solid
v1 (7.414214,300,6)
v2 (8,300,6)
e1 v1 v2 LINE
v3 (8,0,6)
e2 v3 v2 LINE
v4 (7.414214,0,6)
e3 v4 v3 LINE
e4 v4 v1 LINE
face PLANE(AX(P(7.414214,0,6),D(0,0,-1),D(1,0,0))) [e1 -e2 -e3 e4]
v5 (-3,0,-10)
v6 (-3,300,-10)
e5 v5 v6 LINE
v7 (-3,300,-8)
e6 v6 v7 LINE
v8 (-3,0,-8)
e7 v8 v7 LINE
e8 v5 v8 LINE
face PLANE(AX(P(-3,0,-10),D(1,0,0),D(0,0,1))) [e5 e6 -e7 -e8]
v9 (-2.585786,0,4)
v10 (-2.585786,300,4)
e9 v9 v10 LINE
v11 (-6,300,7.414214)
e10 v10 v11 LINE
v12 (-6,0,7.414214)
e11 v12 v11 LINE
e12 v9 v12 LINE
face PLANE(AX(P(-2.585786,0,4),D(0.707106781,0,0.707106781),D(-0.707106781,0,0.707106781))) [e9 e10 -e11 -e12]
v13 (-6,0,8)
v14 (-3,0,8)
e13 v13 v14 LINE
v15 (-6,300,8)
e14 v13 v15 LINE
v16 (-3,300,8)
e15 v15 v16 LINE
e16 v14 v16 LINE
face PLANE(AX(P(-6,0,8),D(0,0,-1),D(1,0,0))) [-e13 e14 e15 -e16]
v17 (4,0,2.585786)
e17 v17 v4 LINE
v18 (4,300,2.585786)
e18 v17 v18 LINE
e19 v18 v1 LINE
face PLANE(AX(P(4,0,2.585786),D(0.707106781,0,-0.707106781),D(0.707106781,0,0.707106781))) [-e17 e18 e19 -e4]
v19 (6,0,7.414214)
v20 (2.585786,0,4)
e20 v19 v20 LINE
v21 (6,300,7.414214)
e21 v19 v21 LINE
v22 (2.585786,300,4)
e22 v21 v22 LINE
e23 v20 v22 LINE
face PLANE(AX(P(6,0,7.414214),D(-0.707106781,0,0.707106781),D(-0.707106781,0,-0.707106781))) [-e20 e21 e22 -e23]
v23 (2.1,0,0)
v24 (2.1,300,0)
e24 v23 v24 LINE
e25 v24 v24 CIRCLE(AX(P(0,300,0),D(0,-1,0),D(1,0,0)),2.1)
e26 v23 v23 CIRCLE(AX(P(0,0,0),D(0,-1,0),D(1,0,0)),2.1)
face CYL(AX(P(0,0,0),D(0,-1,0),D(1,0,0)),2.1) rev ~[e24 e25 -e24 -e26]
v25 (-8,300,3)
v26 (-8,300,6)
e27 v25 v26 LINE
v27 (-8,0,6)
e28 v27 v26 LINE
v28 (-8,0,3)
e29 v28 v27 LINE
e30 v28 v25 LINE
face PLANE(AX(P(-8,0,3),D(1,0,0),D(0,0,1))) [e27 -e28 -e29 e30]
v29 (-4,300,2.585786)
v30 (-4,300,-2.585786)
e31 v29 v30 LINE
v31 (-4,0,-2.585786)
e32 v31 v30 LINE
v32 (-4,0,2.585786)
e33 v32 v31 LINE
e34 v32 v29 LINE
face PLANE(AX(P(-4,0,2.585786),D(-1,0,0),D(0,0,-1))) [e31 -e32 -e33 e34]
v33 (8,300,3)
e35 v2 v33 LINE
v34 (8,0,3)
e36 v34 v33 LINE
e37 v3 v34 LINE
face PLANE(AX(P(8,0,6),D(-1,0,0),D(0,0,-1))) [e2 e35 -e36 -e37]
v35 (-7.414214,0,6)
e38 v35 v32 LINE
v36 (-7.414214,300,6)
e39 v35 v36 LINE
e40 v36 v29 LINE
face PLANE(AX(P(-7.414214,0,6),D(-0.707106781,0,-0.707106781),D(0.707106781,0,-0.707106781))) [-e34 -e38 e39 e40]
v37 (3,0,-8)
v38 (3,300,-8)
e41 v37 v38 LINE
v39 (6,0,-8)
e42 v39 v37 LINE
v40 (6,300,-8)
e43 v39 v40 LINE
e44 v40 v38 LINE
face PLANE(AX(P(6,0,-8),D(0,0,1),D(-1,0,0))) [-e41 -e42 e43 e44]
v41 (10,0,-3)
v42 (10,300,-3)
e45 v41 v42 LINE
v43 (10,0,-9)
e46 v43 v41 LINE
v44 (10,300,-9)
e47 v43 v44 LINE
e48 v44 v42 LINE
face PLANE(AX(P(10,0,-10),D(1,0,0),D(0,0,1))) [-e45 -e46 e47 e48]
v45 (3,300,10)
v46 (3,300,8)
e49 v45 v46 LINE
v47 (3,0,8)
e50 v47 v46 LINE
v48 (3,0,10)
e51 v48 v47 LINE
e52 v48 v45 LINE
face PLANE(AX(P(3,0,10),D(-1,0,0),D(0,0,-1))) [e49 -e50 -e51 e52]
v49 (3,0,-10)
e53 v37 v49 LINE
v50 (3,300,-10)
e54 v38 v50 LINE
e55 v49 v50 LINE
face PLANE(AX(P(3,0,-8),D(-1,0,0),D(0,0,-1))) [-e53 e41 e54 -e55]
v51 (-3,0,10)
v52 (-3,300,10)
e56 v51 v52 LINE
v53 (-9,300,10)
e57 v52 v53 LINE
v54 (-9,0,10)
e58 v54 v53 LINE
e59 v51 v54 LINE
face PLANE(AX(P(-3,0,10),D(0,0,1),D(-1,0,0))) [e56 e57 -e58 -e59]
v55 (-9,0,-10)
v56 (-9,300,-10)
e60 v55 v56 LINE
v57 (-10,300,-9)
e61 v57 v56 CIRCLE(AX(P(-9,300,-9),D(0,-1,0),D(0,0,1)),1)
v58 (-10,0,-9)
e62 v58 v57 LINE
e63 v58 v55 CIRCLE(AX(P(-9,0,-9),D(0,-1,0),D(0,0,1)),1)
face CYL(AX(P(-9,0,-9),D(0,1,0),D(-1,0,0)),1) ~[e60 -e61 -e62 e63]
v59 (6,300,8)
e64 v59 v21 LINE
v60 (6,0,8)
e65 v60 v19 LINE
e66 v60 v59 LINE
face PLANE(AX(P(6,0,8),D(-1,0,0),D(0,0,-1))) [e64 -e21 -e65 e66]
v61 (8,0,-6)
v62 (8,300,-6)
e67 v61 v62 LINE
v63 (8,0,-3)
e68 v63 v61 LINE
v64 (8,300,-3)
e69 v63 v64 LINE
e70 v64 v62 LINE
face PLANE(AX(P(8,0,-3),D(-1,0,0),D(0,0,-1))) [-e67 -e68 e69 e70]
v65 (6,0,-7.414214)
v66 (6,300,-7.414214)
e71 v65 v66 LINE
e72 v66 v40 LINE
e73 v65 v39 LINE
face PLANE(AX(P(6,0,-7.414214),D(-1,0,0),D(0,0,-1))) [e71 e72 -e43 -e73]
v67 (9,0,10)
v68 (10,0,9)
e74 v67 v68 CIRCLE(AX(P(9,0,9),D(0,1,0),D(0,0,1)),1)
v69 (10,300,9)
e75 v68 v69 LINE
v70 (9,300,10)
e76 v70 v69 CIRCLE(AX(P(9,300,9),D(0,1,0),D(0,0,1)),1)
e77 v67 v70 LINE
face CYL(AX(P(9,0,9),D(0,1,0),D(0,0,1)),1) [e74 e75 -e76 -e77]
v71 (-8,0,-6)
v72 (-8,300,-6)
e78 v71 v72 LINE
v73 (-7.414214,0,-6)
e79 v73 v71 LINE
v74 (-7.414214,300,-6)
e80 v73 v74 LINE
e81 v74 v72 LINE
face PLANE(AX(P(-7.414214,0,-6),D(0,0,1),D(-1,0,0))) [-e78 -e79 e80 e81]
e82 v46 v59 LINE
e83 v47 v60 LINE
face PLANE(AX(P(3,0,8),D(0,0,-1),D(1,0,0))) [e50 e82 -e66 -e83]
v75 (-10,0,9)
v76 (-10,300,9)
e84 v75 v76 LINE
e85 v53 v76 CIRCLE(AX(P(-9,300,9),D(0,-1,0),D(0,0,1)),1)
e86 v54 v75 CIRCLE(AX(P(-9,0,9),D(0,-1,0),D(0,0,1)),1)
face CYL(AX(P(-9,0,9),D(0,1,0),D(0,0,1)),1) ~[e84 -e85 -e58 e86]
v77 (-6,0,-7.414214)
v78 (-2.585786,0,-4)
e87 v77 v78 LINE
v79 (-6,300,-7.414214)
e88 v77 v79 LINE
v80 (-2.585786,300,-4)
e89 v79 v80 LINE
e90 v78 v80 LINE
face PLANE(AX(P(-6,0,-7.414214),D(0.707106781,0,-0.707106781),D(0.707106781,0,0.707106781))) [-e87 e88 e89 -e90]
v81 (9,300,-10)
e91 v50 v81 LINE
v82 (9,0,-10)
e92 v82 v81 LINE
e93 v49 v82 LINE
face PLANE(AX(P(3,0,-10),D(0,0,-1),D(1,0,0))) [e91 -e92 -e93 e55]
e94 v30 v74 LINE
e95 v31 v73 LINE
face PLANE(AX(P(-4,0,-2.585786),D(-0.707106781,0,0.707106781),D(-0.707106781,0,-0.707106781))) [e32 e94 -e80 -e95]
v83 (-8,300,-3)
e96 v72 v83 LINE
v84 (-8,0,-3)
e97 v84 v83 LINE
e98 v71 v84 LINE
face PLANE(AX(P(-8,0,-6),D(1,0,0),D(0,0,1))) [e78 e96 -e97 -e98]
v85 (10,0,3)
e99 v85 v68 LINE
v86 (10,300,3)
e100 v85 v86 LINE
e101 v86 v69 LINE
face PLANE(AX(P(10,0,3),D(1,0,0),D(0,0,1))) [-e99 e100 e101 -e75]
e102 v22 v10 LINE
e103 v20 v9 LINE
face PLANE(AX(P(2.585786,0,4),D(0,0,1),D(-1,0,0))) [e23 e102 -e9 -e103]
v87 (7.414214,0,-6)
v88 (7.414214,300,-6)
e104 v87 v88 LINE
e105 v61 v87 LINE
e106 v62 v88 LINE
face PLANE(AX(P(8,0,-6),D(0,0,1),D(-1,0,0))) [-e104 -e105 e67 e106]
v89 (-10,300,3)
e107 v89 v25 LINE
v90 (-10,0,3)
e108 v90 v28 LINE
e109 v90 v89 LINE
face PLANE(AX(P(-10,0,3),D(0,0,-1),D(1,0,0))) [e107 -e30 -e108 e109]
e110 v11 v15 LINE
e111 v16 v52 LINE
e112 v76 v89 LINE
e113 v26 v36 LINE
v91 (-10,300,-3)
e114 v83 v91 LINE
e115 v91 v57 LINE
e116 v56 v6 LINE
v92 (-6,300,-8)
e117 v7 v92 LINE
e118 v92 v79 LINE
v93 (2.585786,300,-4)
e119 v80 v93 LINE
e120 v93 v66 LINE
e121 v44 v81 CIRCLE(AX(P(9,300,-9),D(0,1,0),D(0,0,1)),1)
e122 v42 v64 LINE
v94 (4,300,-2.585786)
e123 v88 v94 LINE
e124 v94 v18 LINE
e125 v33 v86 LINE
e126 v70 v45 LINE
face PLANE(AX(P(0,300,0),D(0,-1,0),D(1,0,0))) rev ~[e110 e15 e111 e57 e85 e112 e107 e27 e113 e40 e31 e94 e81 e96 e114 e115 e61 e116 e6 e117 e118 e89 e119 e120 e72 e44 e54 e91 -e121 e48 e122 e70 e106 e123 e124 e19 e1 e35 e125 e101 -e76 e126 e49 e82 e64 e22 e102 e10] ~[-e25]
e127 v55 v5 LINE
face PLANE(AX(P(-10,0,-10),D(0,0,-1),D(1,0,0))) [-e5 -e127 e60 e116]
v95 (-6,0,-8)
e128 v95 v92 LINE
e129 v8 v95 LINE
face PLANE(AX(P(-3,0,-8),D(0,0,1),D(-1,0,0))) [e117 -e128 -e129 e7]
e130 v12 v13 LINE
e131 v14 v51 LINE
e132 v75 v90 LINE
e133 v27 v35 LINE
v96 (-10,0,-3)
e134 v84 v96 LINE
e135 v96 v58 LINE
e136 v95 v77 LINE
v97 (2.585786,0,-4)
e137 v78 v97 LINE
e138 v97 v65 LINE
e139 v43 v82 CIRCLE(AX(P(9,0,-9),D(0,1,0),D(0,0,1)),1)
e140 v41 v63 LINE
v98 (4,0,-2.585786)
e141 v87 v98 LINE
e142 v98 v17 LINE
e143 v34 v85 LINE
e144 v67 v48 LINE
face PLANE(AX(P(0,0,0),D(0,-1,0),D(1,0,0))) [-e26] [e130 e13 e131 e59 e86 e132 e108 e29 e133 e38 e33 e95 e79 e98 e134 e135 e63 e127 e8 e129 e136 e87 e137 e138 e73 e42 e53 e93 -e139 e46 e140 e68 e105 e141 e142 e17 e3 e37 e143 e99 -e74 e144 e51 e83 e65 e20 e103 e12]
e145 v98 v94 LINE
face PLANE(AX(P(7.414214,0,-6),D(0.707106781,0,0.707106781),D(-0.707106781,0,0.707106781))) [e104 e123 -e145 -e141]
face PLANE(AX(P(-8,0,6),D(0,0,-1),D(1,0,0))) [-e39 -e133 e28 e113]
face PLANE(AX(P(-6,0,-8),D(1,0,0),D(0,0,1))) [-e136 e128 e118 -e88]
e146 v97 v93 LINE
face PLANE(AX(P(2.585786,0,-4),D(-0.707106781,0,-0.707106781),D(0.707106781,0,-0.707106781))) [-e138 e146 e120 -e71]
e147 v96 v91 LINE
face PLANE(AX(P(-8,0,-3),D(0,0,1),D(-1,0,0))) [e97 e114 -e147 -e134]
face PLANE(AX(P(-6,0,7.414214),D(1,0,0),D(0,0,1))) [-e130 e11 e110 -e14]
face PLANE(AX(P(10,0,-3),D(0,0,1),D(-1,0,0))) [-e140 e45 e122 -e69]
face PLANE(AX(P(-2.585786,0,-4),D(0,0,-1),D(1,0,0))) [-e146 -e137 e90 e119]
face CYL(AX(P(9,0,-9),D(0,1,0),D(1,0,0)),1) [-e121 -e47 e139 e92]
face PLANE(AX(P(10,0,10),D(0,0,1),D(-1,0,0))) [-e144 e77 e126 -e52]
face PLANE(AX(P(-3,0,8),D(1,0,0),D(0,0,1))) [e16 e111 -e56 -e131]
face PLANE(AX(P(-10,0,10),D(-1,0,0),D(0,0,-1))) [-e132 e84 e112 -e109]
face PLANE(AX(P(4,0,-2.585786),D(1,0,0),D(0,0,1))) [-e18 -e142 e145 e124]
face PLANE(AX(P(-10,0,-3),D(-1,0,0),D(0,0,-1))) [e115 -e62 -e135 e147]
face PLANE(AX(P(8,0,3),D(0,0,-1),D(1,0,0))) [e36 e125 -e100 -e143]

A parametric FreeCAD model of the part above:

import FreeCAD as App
import Part
import Sketcher

V = App.Vector
Q = App.Units.Quantity


def edges_at(feature, points):
    """Names of the edges that pass closest to the given points."""
    edges = feature.Shape.Edges
    near = lambda p: min(range(len(edges)), key=lambda i: edges[i].distToShape(Part.Vertex(*p))[0])
    return sorted({f"Edge{near(p) + 1}" for p in points})

doc = App.newDocument("Part")
body = doc.addObject("PartDesign::Body", "Body")

# Sketch on XZ plane
sketch1 = body.newObject("Sketcher::SketchObject", "Sketch")
sketch1.AttachmentSupport = (doc.getObject("XZ_Plane"), [""])
sketch1.MapMode = "FlatFace"
sketch1.addGeometry(Part.LineSegment(V(2.585786, 4, 0), V(-2.585786, 4, 0)), False)
sketch1.addGeometry(Part.LineSegment(V(-2.585786, 4, 0), V(-6, 7.414214, 0)), False)
sketch1.addGeometry(Part.LineSegment(V(-6, 7.414214, 0), V(-6, 8, 0)), False)
sketch1.addGeometry(Part.LineSegment(V(-6, 8, 0), V(-3, 8, 0)), False)
sketch1.addGeometry(Part.LineSegment(V(-3, 8, 0), V(-3, 10, 0)), False)
sketch1.addGeometry(Part.LineSegment(V(-3, 10, 0), V(-10, 10, 0)), False)
sketch1.addGeometry(Part.LineSegment(V(-10, 10, 0), V(-10, 3, 0)), False)
sketch1.addGeometry(Part.LineSegment(V(-10, 3, 0), V(-8, 3, 0)), False)
sketch1.addGeometry(Part.LineSegment(V(-8, 3, 0), V(-8, 6, 0)), False)
sketch1.addGeometry(Part.LineSegment(V(-8, 6, 0), V(-7.414214, 6, 0)), False)
sketch1.addGeometry(Part.LineSegment(V(-7.414214, 6, 0), V(-4, 2.585786, 0)), False)
sketch1.addGeometry(Part.LineSegment(V(-4, 2.585786, 0), V(-4, -2.585786, 0)), False)
sketch1.addGeometry(Part.LineSegment(V(-4, -2.585786, 0), V(-7.414214, -6, 0)), False)
sketch1.addGeometry(Part.LineSegment(V(-7.414214, -6, 0), V(-8, -6, 0)), False)
sketch1.addGeometry(Part.LineSegment(V(-8, -6, 0), V(-8, -3, 0)), False)
sketch1.addGeometry(Part.LineSegment(V(-8, -3, 0), V(-10, -3, 0)), False)
sketch1.addGeometry(Part.LineSegment(V(-10, -3, 0), V(-10, -10, 0)), False)
sketch1.addGeometry(Part.LineSegment(V(-10, -10, 0), V(-3, -10, 0)), False)
sketch1.addGeometry(Part.LineSegment(V(-3, -10, 0), V(-3, -8, 0)), False)
sketch1.addGeometry(Part.LineSegment(V(-3, -8, 0), V(-6, -8, 0)), False)
sketch1.addGeometry(Part.LineSegment(V(-6, -8, 0), V(-6, -7.414214, 0)), False)
sketch1.addGeometry(Part.LineSegment(V(-6, -7.414214, 0), V(-2.585786, -4, 0)), False)
sketch1.addGeometry(Part.LineSegment(V(-2.585786, -4, 0), V(2.585786, -4, 0)), False)
sketch1.addGeometry(Part.LineSegment(V(2.585786, -4, 0), V(6, -7.414214, 0)), False)
sketch1.addGeometry(Part.LineSegment(V(6, -7.414214, 0), V(6, -8, 0)), False)
sketch1.addGeometry(Part.LineSegment(V(6, -8, 0), V(3, -8, 0)), False)
sketch1.addGeometry(Part.LineSegment(V(3, -8, 0), V(3, -10, 0)), False)
sketch1.addGeometry(Part.LineSegment(V(3, -10, 0), V(10, -10, 0)), False)
sketch1.addGeometry(Part.LineSegment(V(10, -10, 0), V(10, -3, 0)), False)
sketch1.addGeometry(Part.LineSegment(V(10, -3, 0), V(8, -3, 0)), False)
sketch1.addGeometry(Part.LineSegment(V(8, -3, 0), V(8, -6, 0)), False)
sketch1.addGeometry(Part.LineSegment(V(8, -6, 0), V(7.414214, -6, 0)), False)
sketch1.addGeometry(Part.LineSegment(V(7.414214, -6, 0), V(4, -2.585786, 0)), False)
sketch1.addGeometry(Part.LineSegment(V(4, -2.585786, 0), V(4, 2.585786, 0)), False)
sketch1.addGeometry(Part.LineSegment(V(4, 2.585786, 0), V(7.414214, 6, 0)), False)
sketch1.addGeometry(Part.LineSegment(V(7.414214, 6, 0), V(8, 6, 0)), False)
sketch1.addGeometry(Part.LineSegment(V(8, 6, 0), V(8, 3, 0)), False)
sketch1.addGeometry(Part.LineSegment(V(8, 3, 0), V(10, 3, 0)), False)
sketch1.addGeometry(Part.LineSegment(V(10, 3, 0), V(10, 10, 0)), False)
sketch1.addGeometry(Part.LineSegment(V(10, 10, 0), V(3, 10, 0)), False)
sketch1.addGeometry(Part.LineSegment(V(3, 10, 0), V(3, 8, 0)), False)
sketch1.addGeometry(Part.LineSegment(V(3, 8, 0), V(6, 8, 0)), False)
sketch1.addGeometry(Part.LineSegment(V(6, 8, 0), V(6, 7.414214, 0)), False)
sketch1.addGeometry(Part.LineSegment(V(6, 7.414214, 0), V(2.585786, 4, 0)), False)
sketch1.addGeometry(Part.Circle(V(0, 0, 0), V(0, 0, 1), 2.1), False)
sketch1.addConstraint(Sketcher.Constraint("Coincident", 0, 2, 1, 1))
sketch1.addConstraint(Sketcher.Constraint("Coincident", 1, 2, 2, 1))
sketch1.addConstraint(Sketcher.Constraint("Coincident", 2, 2, 3, 1))
sketch1.addConstraint(Sketcher.Constraint("Coincident", 3, 2, 4, 1))
sketch1.addConstraint(Sketcher.Constraint("Coincident", 4, 2, 5, 1))
sketch1.addConstraint(Sketcher.Constraint("Coincident", 5, 2, 6, 1))
sketch1.addConstraint(Sketcher.Constraint("Coincident", 6, 2, 7, 1))
sketch1.addConstraint(Sketcher.Constraint("Coincident", 7, 2, 8, 1))
sketch1.addConstraint(Sketcher.Constraint("Coincident", 8, 2, 9, 1))
sketch1.addConstraint(Sketcher.Constraint("Coincident", 9, 2, 10, 1))
sketch1.addConstraint(Sketcher.Constraint("Coincident", 10, 2, 11, 1))
sketch1.addConstraint(Sketcher.Constraint("Coincident", 11, 2, 12, 1))
sketch1.addConstraint(Sketcher.Constraint("Coincident", 12, 2, 13, 1))
sketch1.addConstraint(Sketcher.Constraint("Coincident", 13, 2, 14, 1))
sketch1.addConstraint(Sketcher.Constraint("Coincident", 14, 2, 15, 1))
sketch1.addConstraint(Sketcher.Constraint("Coincident", 15, 2, 16, 1))
sketch1.addConstraint(Sketcher.Constraint("Coincident", 16, 2, 17, 1))
sketch1.addConstraint(Sketcher.Constraint("Coincident", 17, 2, 18, 1))
sketch1.addConstraint(Sketcher.Constraint("Coincident", 18, 2, 19, 1))
sketch1.addConstraint(Sketcher.Constraint("Coincident", 19, 2, 20, 1))
sketch1.addConstraint(Sketcher.Constraint("Coincident", 20, 2, 21, 1))
sketch1.addConstraint(Sketcher.Constraint("Coincident", 21, 2, 22, 1))
sketch1.addConstraint(Sketcher.Constraint("Coincident", 22, 2, 23, 1))
sketch1.addConstraint(Sketcher.Constraint("Coincident", 23, 2, 24, 1))
sketch1.addConstraint(Sketcher.Constraint("Coincident", 24, 2, 25, 1))
sketch1.addConstraint(Sketcher.Constraint("Coincident", 25, 2, 26, 1))
sketch1.addConstraint(Sketcher.Constraint("Coincident", 26, 2, 27, 1))
sketch1.addConstraint(Sketcher.Constraint("Coincident", 27, 2, 28, 1))
sketch1.addConstraint(Sketcher.Constraint("Coincident", 28, 2, 29, 1))
sketch1.addConstraint(Sketcher.Constraint("Coincident", 29, 2, 30, 1))
sketch1.addConstraint(Sketcher.Constraint("Coincident", 30, 2, 31, 1))
sketch1.addConstraint(Sketcher.Constraint("Coincident", 31, 2, 32, 1))
sketch1.addConstraint(Sketcher.Constraint("Coincident", 32, 2, 33, 1))
sketch1.addConstraint(Sketcher.Constraint("Coincident", 33, 2, 34, 1))
sketch1.addConstraint(Sketcher.Constraint("Coincident", 34, 2, 35, 1))
sketch1.addConstraint(Sketcher.Constraint("Coincident", 35, 2, 36, 1))
sketch1.addConstraint(Sketcher.Constraint("Coincident", 36, 2, 37, 1))
sketch1.addConstraint(Sketcher.Constraint("Coincident", 37, 2, 38, 1))
sketch1.addConstraint(Sketcher.Constraint("Coincident", 38, 2, 39, 1))
sketch1.addConstraint(Sketcher.Constraint("Coincident", 39, 2, 40, 1))
sketch1.addConstraint(Sketcher.Constraint("Coincident", 40, 2, 41, 1))
sketch1.addConstraint(Sketcher.Constraint("Coincident", 41, 2, 42, 1))
sketch1.addConstraint(Sketcher.Constraint("Coincident", 42, 2, 43, 1))
sketch1.addConstraint(Sketcher.Constraint("Coincident", 43, 2, 0, 1))
sketch1.addConstraint(Sketcher.Constraint("Horizontal", 0))
sketch1.addConstraint(Sketcher.Constraint("Vertical", 2))
sketch1.addConstraint(Sketcher.Constraint("Horizontal", 3))
sketch1.addConstraint(Sketcher.Constraint("Vertical", 4))
sketch1.addConstraint(Sketcher.Constraint("Horizontal", 5))
sketch1.addConstraint(Sketcher.Constraint("Vertical", 6))
sketch1.addConstraint(Sketcher.Constraint("Horizontal", 7))
sketch1.addConstraint(Sketcher.Constraint("Vertical", 8))
sketch1.addConstraint(Sketcher.Constraint("Horizontal", 9))
sketch1.addConstraint(Sketcher.Constraint("Vertical", 11))
sketch1.addConstraint(Sketcher.Constraint("Horizontal", 13))
sketch1.addConstraint(Sketcher.Constraint("Vertical", 14))
sketch1.addConstraint(Sketcher.Constraint("Horizontal", 15))
sketch1.addConstraint(Sketcher.Constraint("Vertical", 16))
sketch1.addConstraint(Sketcher.Constraint("Horizontal", 17))
sketch1.addConstraint(Sketcher.Constraint("Vertical", 18))
sketch1.addConstraint(Sketcher.Constraint("Horizontal", 19))
sketch1.addConstraint(Sketcher.Constraint("Vertical", 20))
sketch1.addConstraint(Sketcher.Constraint("Horizontal", 22))
sketch1.addConstraint(Sketcher.Constraint("Vertical", 24))
sketch1.addConstraint(Sketcher.Constraint("Horizontal", 25))
sketch1.addConstraint(Sketcher.Constraint("Vertical", 26))
sketch1.addConstraint(Sketcher.Constraint("Horizontal", 27))
sketch1.addConstraint(Sketcher.Constraint("Vertical", 28))
sketch1.addConstraint(Sketcher.Constraint("Horizontal", 29))
sketch1.addConstraint(Sketcher.Constraint("Vertical", 30))
sketch1.addConstraint(Sketcher.Constraint("Horizontal", 31))
sketch1.addConstraint(Sketcher.Constraint("Vertical", 33))
sketch1.addConstraint(Sketcher.Constraint("Horizontal", 35))
sketch1.addConstraint(Sketcher.Constraint("Vertical", 36))
sketch1.addConstraint(Sketcher.Constraint("Horizontal", 37))
sketch1.addConstraint(Sketcher.Constraint("Vertical", 38))
sketch1.addConstraint(Sketcher.Constraint("Horizontal", 39))
sketch1.addConstraint(Sketcher.Constraint("Vertical", 40))
sketch1.addConstraint(Sketcher.Constraint("Horizontal", 41))
sketch1.addConstraint(Sketcher.Constraint("Vertical", 42))
sketch1.addConstraint(Sketcher.Constraint("Coincident", 44, 3, -1, 1))
sketch1.addConstraint(Sketcher.Constraint("Symmetric", 0, 2, 22, 2, -1, 1))
sketch1.addConstraint(Sketcher.Constraint("Symmetric", 1, 2, 23, 2, -1, 1))
sketch1.addConstraint(Sketcher.Constraint("Symmetric", 3, 2, 25, 2, -1, 1))
sketch1.addConstraint(Sketcher.Constraint("Symmetric", 5, 2, 27, 2, -1, 1))
sketch1.addConstraint(Sketcher.Constraint("Symmetric", 7, 2, 29, 2, -1, 1))
sketch1.addConstraint(Sketcher.Constraint("Symmetric", 9, 2, 31, 2, -1, 1))
sketch1.addConstraint(Sketcher.Constraint("Symmetric", 10, 2, 32, 2, -1, 1))
sketch1.addConstraint(Sketcher.Constraint("Symmetric", 12, 2, 34, 2, -1, 1))
sketch1.addConstraint(Sketcher.Constraint("Symmetric", 14, 2, 36, 2, -1, 1))
sketch1.addConstraint(Sketcher.Constraint("Symmetric", 16, 2, 38, 2, -1, 1))
sketch1.addConstraint(Sketcher.Constraint("Symmetric", 18, 2, 40, 2, -1, 1))
sketch1.addConstraint(Sketcher.Constraint("Symmetric", 20, 2, 42, 2, -1, 1))
sketch1.addConstraint(Sketcher.Constraint("Symmetric", 20, 2, 23, 2, -2))
sketch1.addConstraint(Sketcher.Constraint("Symmetric", 18, 2, 25, 2, -2))
sketch1.addConstraint(Sketcher.Constraint("Symmetric", 16, 2, 27, 2, -2))
sketch1.addConstraint(Sketcher.Constraint("Symmetric", 14, 2, 29, 2, -2))
sketch1.addConstraint(Sketcher.Constraint("Symmetric", 12, 2, 31, 2, -2))
sketch1.addConstraint(Sketcher.Constraint("Parallel", 1, 10))
sketch1.addConstraint(Sketcher.Constraint("Perpendicular", 10, 12))
sketch1.addConstraint(Sketcher.Constraint("Parallel", 12, 21))
sketch1.addConstraint(Sketcher.Constraint("Perpendicular", 32, 34))
sketch1.addConstraint(Sketcher.Constraint("Parallel", 34, 43))
sketch1.addConstraint(Sketcher.Constraint("Horizontal", 11, 2, 32, 2))
sketch1.addConstraint(Sketcher.Constraint("Equal", 35, 2))
sketch1.addConstraint(Sketcher.Constraint("Equal", 37, 4))
sketch1.addConstraint(Sketcher.Constraint("Equal", 39, 6))
sketch1.addConstraint(Sketcher.Constraint("Equal", 41, 8))
sketch1.addConstraint(Sketcher.Constraint("Equal", 22, 11))
sketch1.addConstraint(Sketcher.Constraint("Equal", 1, 10))
sketch1.addConstraint(Sketcher.Constraint("Diameter", 44, Q("4.2 mm")))
sketch1.addConstraint(Sketcher.Constraint("DistanceX", 3, 1, 3, 2, Q("3 mm")))
sketch1.addConstraint(Sketcher.Constraint("DistanceX", 5, 2, 5, 1, Q("7 mm")))
sketch1.addConstraint(Sketcher.Constraint("DistanceX", 7, 1, 7, 2, Q("2 mm")))
sketch1.addConstraint(Sketcher.Constraint("DistanceY", -1, 1, 0, 2, Q("4 mm")))
sketch1.addConstraint(Sketcher.Constraint("DistanceX", 1, 2, -1, 1, Q("6 mm")))
sketch1.addConstraint(Sketcher.Constraint("DistanceX", 0, 2, 0, 1, Q("5.171572 mm")))
pad1 = body.newObject("PartDesign::Pad", "Pad")
pad1.Profile = sketch1
pad1.Length = 300
pad1.Reversed = True
doc.recompute()

fillet = body.newObject("PartDesign::Fillet", "Fillet")
fillet.Base = (pad1, edges_at(pad1, [
    (-10, 150, 10),
    (10, 150, 10),
    (10, 150, -10),
    (-10, 150, -10),
]))
fillet.Radius = 1

doc.recompute()
